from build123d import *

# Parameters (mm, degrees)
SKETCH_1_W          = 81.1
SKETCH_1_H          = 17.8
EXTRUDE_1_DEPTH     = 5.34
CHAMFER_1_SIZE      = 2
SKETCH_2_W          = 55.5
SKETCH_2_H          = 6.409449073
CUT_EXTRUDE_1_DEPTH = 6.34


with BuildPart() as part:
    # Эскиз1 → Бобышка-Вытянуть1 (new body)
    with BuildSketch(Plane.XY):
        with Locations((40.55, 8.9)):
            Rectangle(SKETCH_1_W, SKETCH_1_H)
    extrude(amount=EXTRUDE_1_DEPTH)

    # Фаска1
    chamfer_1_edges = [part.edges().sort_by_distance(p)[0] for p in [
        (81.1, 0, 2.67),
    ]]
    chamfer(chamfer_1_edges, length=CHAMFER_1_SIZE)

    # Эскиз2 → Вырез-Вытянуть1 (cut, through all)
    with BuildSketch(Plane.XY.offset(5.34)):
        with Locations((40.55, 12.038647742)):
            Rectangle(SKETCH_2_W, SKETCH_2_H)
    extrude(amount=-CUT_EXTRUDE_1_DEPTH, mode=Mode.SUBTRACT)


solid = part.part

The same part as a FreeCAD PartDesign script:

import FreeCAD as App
import Part
import Sketcher

V = App.Vector


def edges_at(feature, points):
    """Names of the edges that pass closest to the given points."""
    edges = feature.Shape.Edges
    near = lambda p: min(range(len(edges)), key=lambda i: edges[i].distToShape(Part.Vertex(*p))[0])
    return sorted({f"Edge{near(p) + 1}" for p in points})


def add_polygon(sketch, points):
    """Adds a closed chain of lines whose ends are joined by coincident constraints."""
    first, n = sketch.GeometryCount, len(points)
    for a, b in zip(points, points[1:] + points[:1]):
        sketch.addGeometry(Part.LineSegment(App.Vector(*a, 0), App.Vector(*b, 0)), False)
    for i in range(n):
        sketch.addConstraint(Sketcher.Constraint("Coincident", first + i, 2, first + (i + 1) % n, 1))

doc = App.newDocument("Part")
body = doc.addObject("PartDesign::Body", "Body")

# Sketch on XY plane
sketch1 = doc.addObject("Sketcher::SketchObject", "Sketch")
body.addObject(sketch1)
sketch1.AttachmentSupport = (doc.XY_Plane, [""])
sketch1.MapMode = "FlatFace"
add_polygon(sketch1, [(0, 18), (0, 0), (81, 0), (81, 18)])  # lines 0-3
sketch1.addConstraint([
    Sketcher.Constraint("Vertical", 0),
    Sketcher.Constraint("Horizontal", 1),
    Sketcher.Constraint("Vertical", 2),
    Sketcher.Constraint("Horizontal", 3),
    Sketcher.Constraint("Coincident", 0, 2, -1, 1),
    Sketcher.Constraint("DistanceX", 1, 1, 1, 2, 81.1),
    Sketcher.Constraint("DistanceY", 0, 2, 0, 1, 17.8),
])
pad1 = doc.addObject("PartDesign::Pad", "Pad")
body.addObject(pad1)
pad1.Profile = sketch1
pad1.Length = 5.34
doc.recompute()

chamfer = doc.addObject("PartDesign::Chamfer", "Chamfer")
body.addObject(chamfer)
chamfer.Base = (pad1, edges_at(pad1, [(81.1, 0, 2.67)]))
chamfer.Size = 2

# Sketch on XY plane
sketch2 = doc.addObject("Sketcher::SketchObject", "Sketch001")
body.addObject(sketch2)
sketch2.AttachmentSupport = (doc.XY_Plane, [""])
sketch2.MapMode = "FlatFace"
sketch2.AttachmentOffset = App.Placement(V(0, 0, 5.34), App.Rotation())
add_polygon(sketch2, [(13, 15), (13, 9), (68, 9), (68, 15)])  # lines 0-3
sketch2.addConstraint([
    Sketcher.Constraint("Vertical", 0),
    Sketcher.Constraint("Horizontal", 1),
    Sketcher.Constraint("Vertical", 2),
    Sketcher.Constraint("Horizontal", 3),
    Sketcher.Constraint("DistanceX", 1, 1, 1, 2, 55.5),
    Sketcher.Constraint("DistanceX", -1, 1, 0, 2, 12.8),
    Sketcher.Constraint("DistanceY", 0, 2, 0, 1, 6.409449),
    Sketcher.Constraint("DistanceY", -1, 1, 0, 2, 8.833923),
])
pocket1 = doc.addObject("PartDesign::Pocket", "Pocket")
body.addObject(pocket1)
pocket1.Profile = sketch2
pocket1.Type = "ThroughAll"

doc.recompute()
